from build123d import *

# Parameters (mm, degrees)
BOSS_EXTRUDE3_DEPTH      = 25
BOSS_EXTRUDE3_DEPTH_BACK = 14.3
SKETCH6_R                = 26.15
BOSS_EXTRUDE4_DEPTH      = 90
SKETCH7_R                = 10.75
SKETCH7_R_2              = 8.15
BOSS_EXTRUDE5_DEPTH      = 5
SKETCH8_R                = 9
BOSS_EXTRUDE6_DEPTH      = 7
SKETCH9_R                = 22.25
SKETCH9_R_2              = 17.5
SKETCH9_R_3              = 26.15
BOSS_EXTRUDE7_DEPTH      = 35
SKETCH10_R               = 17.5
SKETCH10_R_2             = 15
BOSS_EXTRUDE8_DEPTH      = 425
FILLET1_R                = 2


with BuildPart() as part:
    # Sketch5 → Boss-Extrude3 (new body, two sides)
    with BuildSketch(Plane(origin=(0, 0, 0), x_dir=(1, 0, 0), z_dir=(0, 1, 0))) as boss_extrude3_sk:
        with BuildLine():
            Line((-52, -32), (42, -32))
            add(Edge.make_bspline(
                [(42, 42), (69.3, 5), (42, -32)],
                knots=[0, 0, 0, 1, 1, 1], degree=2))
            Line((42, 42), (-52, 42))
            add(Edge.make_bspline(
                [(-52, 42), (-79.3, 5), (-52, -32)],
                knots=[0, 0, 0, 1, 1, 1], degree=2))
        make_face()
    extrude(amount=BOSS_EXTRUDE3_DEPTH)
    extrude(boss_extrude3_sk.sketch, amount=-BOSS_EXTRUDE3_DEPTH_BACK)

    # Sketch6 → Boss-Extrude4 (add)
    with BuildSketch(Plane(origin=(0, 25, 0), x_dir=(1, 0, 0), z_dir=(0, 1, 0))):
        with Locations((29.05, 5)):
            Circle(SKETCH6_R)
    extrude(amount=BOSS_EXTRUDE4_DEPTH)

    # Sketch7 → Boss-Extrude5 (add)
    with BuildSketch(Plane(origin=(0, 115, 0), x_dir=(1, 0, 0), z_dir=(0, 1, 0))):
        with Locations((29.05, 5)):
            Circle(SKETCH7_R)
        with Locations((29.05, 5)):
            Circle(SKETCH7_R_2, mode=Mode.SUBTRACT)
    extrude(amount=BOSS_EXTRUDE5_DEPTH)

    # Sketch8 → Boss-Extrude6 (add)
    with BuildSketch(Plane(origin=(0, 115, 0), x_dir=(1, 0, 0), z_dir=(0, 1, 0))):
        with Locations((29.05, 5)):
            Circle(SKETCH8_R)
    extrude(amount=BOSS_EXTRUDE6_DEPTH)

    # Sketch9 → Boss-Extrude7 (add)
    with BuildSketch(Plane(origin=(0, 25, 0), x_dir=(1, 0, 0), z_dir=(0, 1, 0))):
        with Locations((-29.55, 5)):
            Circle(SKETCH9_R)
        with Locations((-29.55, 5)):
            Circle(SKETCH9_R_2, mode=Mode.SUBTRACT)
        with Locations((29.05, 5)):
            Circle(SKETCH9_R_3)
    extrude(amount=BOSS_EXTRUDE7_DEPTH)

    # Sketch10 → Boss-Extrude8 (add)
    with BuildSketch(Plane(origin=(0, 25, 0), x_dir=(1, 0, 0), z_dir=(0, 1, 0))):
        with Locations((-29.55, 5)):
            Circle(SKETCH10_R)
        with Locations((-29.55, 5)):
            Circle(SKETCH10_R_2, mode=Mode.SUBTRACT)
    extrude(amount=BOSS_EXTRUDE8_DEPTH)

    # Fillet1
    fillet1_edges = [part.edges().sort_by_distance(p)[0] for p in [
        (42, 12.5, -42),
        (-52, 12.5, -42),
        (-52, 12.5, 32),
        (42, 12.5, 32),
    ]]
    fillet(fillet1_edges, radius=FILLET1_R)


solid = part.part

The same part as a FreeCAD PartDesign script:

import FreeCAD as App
import Part
import Sketcher


def edges_at(feature, points):
    """Names of the edges that pass closest to the given points."""
    edges = feature.Shape.Edges
    near = lambda p: min(range(len(edges)), key=lambda i: edges[i].distToShape(Part.Vertex(*p))[0])
    return sorted({f"Edge{near(p) + 1}" for p in points})

doc = App.newDocument("Part")
body = doc.addObject("PartDesign::Body", "Body")

sketch1 = body.newObject("Sketcher::SketchObject", "Sketch")
sketch1.AttachmentSupport = (doc.getObject("XZ_Plane"), [""])
sketch1.MapMode = "FlatFace"
sketch1.addGeometry([
    Part.LineSegment(App.Vector(-52, 32, 0), App.Vector(42, 32, 0)),
    Part.BSplineCurve([App.Vector(42, -42, 0), App.Vector(69.3, -5, 0), App.Vector(42, 32, 0)], [3, 3], [0, 1], False, 2, [1, 1, 1], False),
    Part.LineSegment(App.Vector(42, -42, 0), App.Vector(-52, -42, 0)),
    Part.BSplineCurve([App.Vector(-52, -42, 0), App.Vector(-79.3, -5, 0), App.Vector(-52, 32, 0)], [3, 3], [0, 1], False, 2, [1, 1, 1], False),
], False)
sketch1.addConstraint([
    Sketcher.Constraint("Block", 1),
    Sketcher.Constraint("Block", 3),
    Sketcher.Constraint("Coincident", 0, 2, 1, 2),
    Sketcher.Constraint("Coincident", 1, 1, 2, 1),
    Sketcher.Constraint("Coincident", 2, 2, 3, 1),
    Sketcher.Constraint("Coincident", 3, 2, 0, 1),
])
pad1 = body.newObject("PartDesign::Pad", "Pad")
pad1.Profile = sketch1
pad1.Type = "TwoLengths"
pad1.Length = 25
pad1.Length2 = 14.3
pad1.Reversed = True

sketch2 = body.newObject("Sketcher::SketchObject", "Sketch001")
sketch2.AttachmentSupport = (doc.getObject("XZ_Plane"), [""])
sketch2.MapMode = "FlatFace"
sketch2.AttachmentOffset = App.Placement(App.Vector(0, 0, -25), App.Rotation())
sketch2.addGeometry(Part.Circle(App.Vector(29.05, -5, 0), App.Vector(0, 0, 1), 26.15), False)
sketch2.addConstraint([
    Sketcher.Constraint("Diameter", 0, 52.3),
    Sketcher.Constraint("DistanceY", 0, 3, -1, 1, 5.0),
    Sketcher.Constraint("DistanceX", -1, 1, 0, 3, 29.05),
])
pad2 = body.newObject("PartDesign::Pad", "Pad001")
pad2.Profile = sketch2
pad2.Length = 90
pad2.Reversed = True

sketch3 = body.newObject("Sketcher::SketchObject", "Sketch002")
sketch3.AttachmentSupport = (doc.getObject("XZ_Plane"), [""])
sketch3.MapMode = "FlatFace"
sketch3.AttachmentOffset = App.Placement(App.Vector(0, 0, -115), App.Rotation())
sketch3.addGeometry([
    Part.Circle(App.Vector(29.05, -5, 0), App.Vector(0, 0, 1), 10.75),
    Part.Circle(App.Vector(29.05, -5, 0), App.Vector(0, 0, 1), 8.15),
], False)
sketch3.addConstraint([
    Sketcher.Constraint("Coincident", 1, 3, 0, 3),
    Sketcher.Constraint("Diameter", 0, 21.5),
    Sketcher.Constraint("Diameter", 1, 16.3),
    Sketcher.Constraint("DistanceY", 0, 3, -1, 1, 5.0),
    Sketcher.Constraint("DistanceX", -1, 1, 0, 3, 29.05),
])
pad3 = body.newObject("PartDesign::Pad", "Pad002")
pad3.Profile = sketch3
pad3.Length = 5
pad3.Reversed = True

sketch4 = body.newObject("Sketcher::SketchObject", "Sketch003")
sketch4.AttachmentSupport = (doc.getObject("XZ_Plane"), [""])
sketch4.MapMode = "FlatFace"
sketch4.AttachmentOffset = App.Placement(App.Vector(0, 0, -115), App.Rotation())
sketch4.addGeometry(Part.Circle(App.Vector(29.05, -5, 0), App.Vector(0, 0, 1), 9), False)
sketch4.addConstraint([
    Sketcher.Constraint("Diameter", 0, 18.0),
    Sketcher.Constraint("DistanceY", 0, 3, -1, 1, 5.0),
    Sketcher.Constraint("DistanceX", -1, 1, 0, 3, 29.05),
])
pad4 = body.newObject("PartDesign::Pad", "Pad003")
pad4.Profile = sketch4
pad4.Length = 7
pad4.Reversed = True

sketch5 = body.newObject("Sketcher::SketchObject", "Sketch004")
sketch5.AttachmentSupport = (doc.getObject("XZ_Plane"), [""])
sketch5.MapMode = "FlatFace"
sketch5.AttachmentOffset = App.Placement(App.Vector(0, 0, -25), App.Rotation())
sketch5.addGeometry([
    Part.Circle(App.Vector(-29.55, -5, 0), App.Vector(0, 0, 1), 22.25),
    Part.Circle(App.Vector(-29.55, -5, 0), App.Vector(0, 0, 1), 17.5),
    Part.Circle(App.Vector(29.05, -5, 0), App.Vector(0, 0, 1), 26.15),
], False)
sketch5.addConstraint([
    Sketcher.Constraint("Coincident", 1, 3, 0, 3),
    Sketcher.Constraint("Horizontal", 1, 3, 2, 3),
    Sketcher.Constraint("Diameter", 1, 35.0),
    Sketcher.Constraint("Diameter", 0, 44.5),
    Sketcher.Constraint("Diameter", 2, 52.3),
    Sketcher.Constraint("DistanceY", 0, 3, -1, 1, 5.0),
    Sketcher.Constraint("DistanceX", 0, 3, 2, 3, 58.6),
    Sketcher.Constraint("DistanceX", 0, 3, -1, 1, 29.55),
])
pad5 = body.newObject("PartDesign::Pad", "Pad004")
pad5.Profile = sketch5
pad5.Length = 35
pad5.Reversed = True

sketch6 = body.newObject("Sketcher::SketchObject", "Sketch005")
sketch6.AttachmentSupport = (doc.getObject("XZ_Plane"), [""])
sketch6.MapMode = "FlatFace"
sketch6.AttachmentOffset = App.Placement(App.Vector(0, 0, -25), App.Rotation())
sketch6.addGeometry([
    Part.Circle(App.Vector(-29.55, -5, 0), App.Vector(0, 0, 1), 17.5),
    Part.Circle(App.Vector(-29.55, -5, 0), App.Vector(0, 0, 1), 15),
], False)
sketch6.addConstraint([
    Sketcher.Constraint("Coincident", 1, 3, 0, 3),
    Sketcher.Constraint("Diameter", 0, 35.0),
    Sketcher.Constraint("Diameter", 1, 30.0),
    Sketcher.Constraint("DistanceY", 0, 3, -1, 1, 5.0),
    Sketcher.Constraint("DistanceX", 0, 3, -1, 1, 29.55),
])
pad6 = body.newObject("PartDesign::Pad", "Pad005")
pad6.Profile = sketch6
pad6.Length = 425
pad6.Reversed = True
doc.recompute()

fillet = body.newObject("PartDesign::Fillet", "Fillet")
fillet.Base = (pad6, edges_at(pad6, [
    (42, 12.5, -42),
    (-52, 12.5, -42),
    (-52, 12.5, 32),
    (42, 12.5, 32),
]))
fillet.Radius = 2

doc.recompute()
